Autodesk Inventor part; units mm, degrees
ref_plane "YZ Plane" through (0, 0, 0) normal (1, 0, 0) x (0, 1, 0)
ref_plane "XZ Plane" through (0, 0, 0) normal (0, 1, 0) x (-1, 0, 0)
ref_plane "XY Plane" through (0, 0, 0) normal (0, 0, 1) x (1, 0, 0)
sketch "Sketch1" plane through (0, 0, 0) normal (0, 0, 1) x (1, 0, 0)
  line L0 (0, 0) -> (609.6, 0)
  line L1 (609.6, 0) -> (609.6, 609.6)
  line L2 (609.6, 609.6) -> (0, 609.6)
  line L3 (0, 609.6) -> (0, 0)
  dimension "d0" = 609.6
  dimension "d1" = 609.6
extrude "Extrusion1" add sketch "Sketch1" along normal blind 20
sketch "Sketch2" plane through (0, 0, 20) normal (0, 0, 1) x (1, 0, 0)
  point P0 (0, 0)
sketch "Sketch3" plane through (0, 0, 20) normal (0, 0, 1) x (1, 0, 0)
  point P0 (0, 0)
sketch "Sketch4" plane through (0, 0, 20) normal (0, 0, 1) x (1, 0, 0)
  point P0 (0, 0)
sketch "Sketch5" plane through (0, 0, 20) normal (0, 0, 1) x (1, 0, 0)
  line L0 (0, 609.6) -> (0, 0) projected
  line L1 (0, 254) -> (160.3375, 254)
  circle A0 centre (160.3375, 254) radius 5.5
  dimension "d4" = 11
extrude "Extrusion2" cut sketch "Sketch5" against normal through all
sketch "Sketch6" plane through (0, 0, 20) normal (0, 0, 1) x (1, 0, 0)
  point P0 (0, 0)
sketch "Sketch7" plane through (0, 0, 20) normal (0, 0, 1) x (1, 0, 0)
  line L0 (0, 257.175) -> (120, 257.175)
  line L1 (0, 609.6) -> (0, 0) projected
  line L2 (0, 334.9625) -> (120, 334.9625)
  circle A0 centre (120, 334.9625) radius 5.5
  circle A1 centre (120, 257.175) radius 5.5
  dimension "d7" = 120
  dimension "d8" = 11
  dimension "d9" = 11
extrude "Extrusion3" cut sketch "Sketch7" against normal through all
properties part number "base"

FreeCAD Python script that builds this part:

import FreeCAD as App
import Part
import Sketcher

V = App.Vector


def add_polygon(sketch, points):
    """Adds a closed chain of lines whose ends are joined by coincident constraints."""
    first, n = sketch.GeometryCount, len(points)
    for a, b in zip(points, points[1:] + points[:1]):
        sketch.addGeometry(Part.LineSegment(App.Vector(*a, 0), App.Vector(*b, 0)), False)
    for i in range(n):
        sketch.addConstraint(Sketcher.Constraint("Coincident", first + i, 2, first + (i + 1) % n, 1))

doc = App.newDocument("Part")
body = doc.addObject("PartDesign::Body", "Body")

# Sketch on XY plane
sketch1 = body.newObject("Sketcher::SketchObject", "Sketch")
sketch1.AttachmentSupport = (doc.getObject("XY_Plane"), [""])
sketch1.MapMode = "FlatFace"
add_polygon(sketch1, [(0, 610), (0, 0), (610, 0), (610, 610)])  # lines 0-3
sketch1.addConstraint([
    Sketcher.Constraint("Vertical", 0),
    Sketcher.Constraint("Horizontal", 1),
    Sketcher.Constraint("Vertical", 2),
    Sketcher.Constraint("Horizontal", 3),
    Sketcher.Constraint("Coincident", 0, 2, -1, 1),
    Sketcher.Constraint("Equal", 3, 0),
    Sketcher.Constraint("DistanceX", 1, 1, 1, 2, 609.6),
])
pad1 = body.newObject("PartDesign::Pad", "Pad")
pad1.Profile = sketch1
pad1.Length = 20

# Sketch on XY plane
sketch2 = body.newObject("Sketcher::SketchObject", "Sketch001")
sketch2.AttachmentSupport = (doc.getObject("XY_Plane"), [""])
sketch2.MapMode = "FlatFace"
sketch2.AttachmentOffset = App.Placement(V(0, 0, 20), App.Rotation())
sketch2.addGeometry(Part.Circle(V(160, 254, 0), V(0, 0, 1), 6), False)
sketch2.addConstraint([
    Sketcher.Constraint("Diameter", 0, 11.0),
    Sketcher.Constraint("DistanceY", -1, 1, 0, 3, 254.0),
    Sketcher.Constraint("DistanceX", -1, 1, 0, 3, 160.3375),
])
pocket1 = body.newObject("PartDesign::Pocket", "Pocket")
pocket1.Profile = sketch2
pocket1.Type = "ThroughAll"

# Sketch on XY plane
sketch3 = body.newObject("Sketcher::SketchObject", "Sketch002")
sketch3.AttachmentSupport = (doc.getObject("XY_Plane"), [""])
sketch3.MapMode = "FlatFace"
sketch3.AttachmentOffset = App.Placement(V(0, 0, 20), App.Rotation())
sketch3.addGeometry([
    Part.Circle(V(120, 257, 0), V(0, 0, 1), 6),
    Part.Circle(V(120, 335, 0), V(0, 0, 1), 6),
], False)
sketch3.addConstraint([
    Sketcher.Constraint("Equal", 0, 1),
    Sketcher.Constraint("Vertical", 0, 3, 1, 3),
    Sketcher.Constraint("Diameter", 0, 11.0),
    Sketcher.Constraint("DistanceX", -1, 1, 0, 3, 120.0),
    Sketcher.Constraint("DistanceY", -1, 1, 0, 3, 257.175),
    Sketcher.Constraint("DistanceY", -1, 1, 1, 3, 334.9625),
])
pocket2 = body.newObject("PartDesign::Pocket", "Pocket001")
pocket2.Profile = sketch3
pocket2.Type = "ThroughAll"

doc.recompute()
